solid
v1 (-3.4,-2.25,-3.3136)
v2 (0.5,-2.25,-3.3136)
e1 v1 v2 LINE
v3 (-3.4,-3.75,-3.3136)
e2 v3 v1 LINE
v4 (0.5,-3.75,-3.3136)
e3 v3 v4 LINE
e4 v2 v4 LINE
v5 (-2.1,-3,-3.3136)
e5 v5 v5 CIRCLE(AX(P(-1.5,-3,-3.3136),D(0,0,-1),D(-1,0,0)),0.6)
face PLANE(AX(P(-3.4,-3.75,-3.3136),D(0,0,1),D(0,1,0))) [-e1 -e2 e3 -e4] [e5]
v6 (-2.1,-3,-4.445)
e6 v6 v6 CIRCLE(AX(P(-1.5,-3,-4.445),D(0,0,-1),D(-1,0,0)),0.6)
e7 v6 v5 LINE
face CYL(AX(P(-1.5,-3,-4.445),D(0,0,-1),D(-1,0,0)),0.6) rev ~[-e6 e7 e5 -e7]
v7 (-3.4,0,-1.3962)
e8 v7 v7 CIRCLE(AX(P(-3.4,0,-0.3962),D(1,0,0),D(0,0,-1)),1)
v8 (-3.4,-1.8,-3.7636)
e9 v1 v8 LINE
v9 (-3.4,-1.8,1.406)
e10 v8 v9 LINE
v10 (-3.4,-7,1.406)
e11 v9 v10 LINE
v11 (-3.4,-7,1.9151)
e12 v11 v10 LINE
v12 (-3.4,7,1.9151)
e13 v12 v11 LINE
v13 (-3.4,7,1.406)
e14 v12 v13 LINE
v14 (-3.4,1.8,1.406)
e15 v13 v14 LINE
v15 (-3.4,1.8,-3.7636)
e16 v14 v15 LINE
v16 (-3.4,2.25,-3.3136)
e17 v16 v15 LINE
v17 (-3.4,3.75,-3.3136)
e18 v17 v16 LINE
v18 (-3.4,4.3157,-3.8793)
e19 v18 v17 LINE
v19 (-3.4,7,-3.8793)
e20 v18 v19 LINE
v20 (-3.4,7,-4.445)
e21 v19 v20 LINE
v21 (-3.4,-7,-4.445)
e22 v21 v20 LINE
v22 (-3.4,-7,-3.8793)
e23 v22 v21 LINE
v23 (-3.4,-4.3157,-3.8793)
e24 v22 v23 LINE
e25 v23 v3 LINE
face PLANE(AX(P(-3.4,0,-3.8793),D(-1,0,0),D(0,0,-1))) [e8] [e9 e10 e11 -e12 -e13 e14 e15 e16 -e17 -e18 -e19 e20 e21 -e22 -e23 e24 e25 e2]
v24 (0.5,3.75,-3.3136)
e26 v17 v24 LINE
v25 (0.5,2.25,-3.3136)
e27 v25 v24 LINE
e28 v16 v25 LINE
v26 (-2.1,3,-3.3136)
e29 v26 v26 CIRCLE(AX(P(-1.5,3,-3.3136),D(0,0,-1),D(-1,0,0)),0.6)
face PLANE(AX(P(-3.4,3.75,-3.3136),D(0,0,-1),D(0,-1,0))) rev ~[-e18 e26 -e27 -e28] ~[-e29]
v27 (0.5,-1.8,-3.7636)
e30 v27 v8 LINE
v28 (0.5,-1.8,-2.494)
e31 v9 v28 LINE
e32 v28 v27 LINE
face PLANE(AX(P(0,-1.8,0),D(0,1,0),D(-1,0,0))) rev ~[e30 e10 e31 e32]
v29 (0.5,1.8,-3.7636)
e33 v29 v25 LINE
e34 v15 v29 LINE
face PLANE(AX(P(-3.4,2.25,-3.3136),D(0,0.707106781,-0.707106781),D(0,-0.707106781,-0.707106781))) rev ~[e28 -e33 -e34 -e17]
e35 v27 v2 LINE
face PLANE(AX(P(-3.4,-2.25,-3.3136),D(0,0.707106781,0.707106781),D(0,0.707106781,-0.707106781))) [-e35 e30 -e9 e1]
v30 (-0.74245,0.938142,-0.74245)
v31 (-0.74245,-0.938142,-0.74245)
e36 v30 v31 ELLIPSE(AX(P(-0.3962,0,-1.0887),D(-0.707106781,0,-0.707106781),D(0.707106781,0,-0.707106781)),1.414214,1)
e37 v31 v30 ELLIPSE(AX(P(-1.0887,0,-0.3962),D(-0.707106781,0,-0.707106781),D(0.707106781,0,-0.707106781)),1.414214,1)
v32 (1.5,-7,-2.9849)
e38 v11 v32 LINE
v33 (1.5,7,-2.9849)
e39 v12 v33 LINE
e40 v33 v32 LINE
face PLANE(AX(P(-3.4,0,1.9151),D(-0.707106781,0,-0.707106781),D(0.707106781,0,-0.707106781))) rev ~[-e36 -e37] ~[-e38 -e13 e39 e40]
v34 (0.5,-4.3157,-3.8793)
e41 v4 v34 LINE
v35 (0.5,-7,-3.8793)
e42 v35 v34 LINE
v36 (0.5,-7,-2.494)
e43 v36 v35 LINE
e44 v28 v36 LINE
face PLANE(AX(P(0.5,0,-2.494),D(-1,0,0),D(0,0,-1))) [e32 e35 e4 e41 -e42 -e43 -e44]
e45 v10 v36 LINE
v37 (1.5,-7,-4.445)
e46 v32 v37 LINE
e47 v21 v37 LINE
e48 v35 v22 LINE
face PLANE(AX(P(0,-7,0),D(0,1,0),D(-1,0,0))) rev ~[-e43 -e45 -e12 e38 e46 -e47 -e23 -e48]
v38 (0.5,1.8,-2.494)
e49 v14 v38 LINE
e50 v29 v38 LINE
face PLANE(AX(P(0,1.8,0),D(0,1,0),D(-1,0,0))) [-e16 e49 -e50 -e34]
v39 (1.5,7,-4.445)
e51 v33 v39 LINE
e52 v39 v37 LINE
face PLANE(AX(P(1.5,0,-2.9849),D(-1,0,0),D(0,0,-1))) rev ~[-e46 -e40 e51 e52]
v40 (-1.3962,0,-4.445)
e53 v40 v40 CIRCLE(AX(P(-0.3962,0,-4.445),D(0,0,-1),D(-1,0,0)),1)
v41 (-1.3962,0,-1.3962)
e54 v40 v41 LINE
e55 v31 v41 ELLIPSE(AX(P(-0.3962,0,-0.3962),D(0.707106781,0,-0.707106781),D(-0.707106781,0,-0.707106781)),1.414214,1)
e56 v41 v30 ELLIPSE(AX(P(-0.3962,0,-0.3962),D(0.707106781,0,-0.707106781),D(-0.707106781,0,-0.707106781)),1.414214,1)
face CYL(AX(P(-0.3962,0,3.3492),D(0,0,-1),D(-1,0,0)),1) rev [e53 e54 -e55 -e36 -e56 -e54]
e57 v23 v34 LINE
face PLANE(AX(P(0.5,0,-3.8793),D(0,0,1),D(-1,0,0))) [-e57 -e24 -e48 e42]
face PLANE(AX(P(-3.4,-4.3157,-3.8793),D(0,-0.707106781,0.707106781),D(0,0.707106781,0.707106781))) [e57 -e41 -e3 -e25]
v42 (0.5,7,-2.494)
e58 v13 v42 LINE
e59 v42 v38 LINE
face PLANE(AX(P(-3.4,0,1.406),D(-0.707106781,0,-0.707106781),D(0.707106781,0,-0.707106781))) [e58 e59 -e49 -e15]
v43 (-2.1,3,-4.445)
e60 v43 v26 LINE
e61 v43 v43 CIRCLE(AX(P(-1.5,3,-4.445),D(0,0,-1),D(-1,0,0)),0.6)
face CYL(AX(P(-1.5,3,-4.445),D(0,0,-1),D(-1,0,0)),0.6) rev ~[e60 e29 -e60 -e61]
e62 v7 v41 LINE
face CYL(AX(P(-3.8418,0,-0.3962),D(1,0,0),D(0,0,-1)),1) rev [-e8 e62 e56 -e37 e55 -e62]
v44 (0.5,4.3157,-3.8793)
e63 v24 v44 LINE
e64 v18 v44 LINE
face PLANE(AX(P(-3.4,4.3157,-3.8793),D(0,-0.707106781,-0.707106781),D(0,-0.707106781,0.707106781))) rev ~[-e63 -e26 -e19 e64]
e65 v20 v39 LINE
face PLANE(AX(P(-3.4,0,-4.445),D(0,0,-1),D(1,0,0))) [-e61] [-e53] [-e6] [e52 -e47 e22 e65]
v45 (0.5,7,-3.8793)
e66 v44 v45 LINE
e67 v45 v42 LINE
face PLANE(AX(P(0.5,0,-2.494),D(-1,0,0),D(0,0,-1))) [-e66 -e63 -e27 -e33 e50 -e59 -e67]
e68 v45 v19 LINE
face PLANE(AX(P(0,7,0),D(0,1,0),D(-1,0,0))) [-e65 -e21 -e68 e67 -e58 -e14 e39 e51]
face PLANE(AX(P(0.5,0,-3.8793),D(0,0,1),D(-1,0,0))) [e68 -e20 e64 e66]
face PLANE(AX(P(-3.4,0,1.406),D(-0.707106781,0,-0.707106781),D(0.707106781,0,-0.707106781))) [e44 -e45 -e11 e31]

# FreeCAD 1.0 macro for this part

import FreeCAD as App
import Part
import Sketcher

V = App.Vector
Q = App.Units.Quantity

doc = App.newDocument("Part")
body = doc.addObject("PartDesign::Body", "Body")

# Sketch on XZ plane
sketch1 = body.newObject("Sketcher::SketchObject", "Sketch")
sketch1.AttachmentSupport = (doc.getObject("XZ_Plane"), [""])
sketch1.MapMode = "FlatFace"
sketch1.addGeometry(Part.LineSegment(V(1.5, -4.4, 0), V(-3.4, -4.4, 0)), False)
sketch1.addGeometry(Part.LineSegment(V(-3.4, -4.4, 0), V(-3.4, -3.9, 0)), False)
sketch1.addGeometry(Part.LineSegment(V(-3.4, -3.9, 0), V(0.5, -3.9, 0)), False)
sketch1.addGeometry(Part.LineSegment(V(0.5, -3.9, 0), V(0.5, -2.5, 0)), False)
sketch1.addGeometry(Part.LineSegment(V(0.5, -2.5, 0), V(-3.4, 1.4, 0)), False)
sketch1.addGeometry(Part.LineSegment(V(-3.4, 1.4, 0), V(-3.4, 1.9, 0)), False)
sketch1.addGeometry(Part.LineSegment(V(-3.4, 1.9, 0), V(1.5, -3, 0)), False)
sketch1.addGeometry(Part.LineSegment(V(1.5, -3, 0), V(1.5, -4.4, 0)), False)
sketch1.addConstraint(Sketcher.Constraint("Coincident", 0, 2, 1, 1))
sketch1.addConstraint(Sketcher.Constraint("Coincident", 1, 2, 2, 1))
sketch1.addConstraint(Sketcher.Constraint("Coincident", 2, 2, 3, 1))
sketch1.addConstraint(Sketcher.Constraint("Coincident", 3, 2, 4, 1))
sketch1.addConstraint(Sketcher.Constraint("Coincident", 4, 2, 5, 1))
sketch1.addConstraint(Sketcher.Constraint("Coincident", 5, 2, 6, 1))
sketch1.addConstraint(Sketcher.Constraint("Coincident", 6, 2, 7, 1))
sketch1.addConstraint(Sketcher.Constraint("Coincident", 7, 2, 0, 1))
sketch1.addConstraint(Sketcher.Constraint("Horizontal", 0))
sketch1.addConstraint(Sketcher.Constraint("Vertical", 1))
sketch1.addConstraint(Sketcher.Constraint("Horizontal", 2))
sketch1.addConstraint(Sketcher.Constraint("Vertical", 3))
sketch1.addConstraint(Sketcher.Constraint("Vertical", 5))
sketch1.addConstraint(Sketcher.Constraint("Vertical", 7))
sketch1.addConstraint(Sketcher.Constraint("Parallel", 4, 6))
sketch1.addConstraint(Sketcher.Constraint("Vertical", 1, 2, 4, 2))
sketch1.addConstraint(Sketcher.Constraint("Angle", 4, Q("135 deg")))
sketch1.addConstraint(Sketcher.Constraint("DistanceX", 3, 2, 6, 2, Q("1 mm")))
sketch1.addConstraint(Sketcher.Constraint("DistanceX", 0, 2, -1, 1, Q("3.4 mm")))
sketch1.addConstraint(Sketcher.Constraint("DistanceX", -1, 1, 6, 2, Q("1.5 mm")))
sketch1.addConstraint(Sketcher.Constraint("DistanceY", 0, 2, -1, 1, Q("4.445 mm")))
sketch1.addConstraint(Sketcher.Constraint("DistanceY", 7, 2, 7, 1, Q("1.46 mm")))
sketch1.addConstraint(Sketcher.Constraint("DistanceY", 5, 1, 5, 2, Q("0.509 mm")))
sketch1.addConstraint(Sketcher.Constraint("DistanceY", 1, 1, 1, 2, Q("0.5657 mm")))
pad1 = body.newObject("PartDesign::Pad", "Pad")
pad1.Profile = sketch1
pad1.Length = 14
pad1.Midplane = True

# Sketch on YZ plane
sketch2 = body.newObject("Sketcher::SketchObject", "Sketch001")
sketch2.AttachmentSupport = (doc.getObject("YZ_Plane"), [""])
sketch2.MapMode = "FlatFace"
sketch2.AttachmentOffset = App.Placement(V(0, 0, -3.4), App.Rotation())
sketch2.addGeometry(Part.LineSegment(V(4.3, -3.9, 0), V(1.7, -3.9, 0)), False)
sketch2.addGeometry(Part.LineSegment(V(1.7, -3.9, 0), V(2.2, -3.3, 0)), False)
sketch2.addGeometry(Part.LineSegment(V(2.2, -3.3, 0), V(3.8, -3.3, 0)), False)
sketch2.addGeometry(Part.LineSegment(V(3.8, -3.3, 0), V(4.3, -3.9, 0)), False)
sketch2.addGeometry(Part.LineSegment(V(-1.7, -3.9, 0), V(-4.3, -3.9, 0)), False)
sketch2.addGeometry(Part.LineSegment(V(-4.3, -3.9, 0), V(-3.8, -3.3, 0)), False)
sketch2.addGeometry(Part.LineSegment(V(-3.8, -3.3, 0), V(-2.2, -3.3, 0)), False)
sketch2.addGeometry(Part.LineSegment(V(-2.2, -3.3, 0), V(-1.7, -3.9, 0)), False)
sketch2.addConstraint(Sketcher.Constraint("Coincident", 0, 2, 1, 1))
sketch2.addConstraint(Sketcher.Constraint("Coincident", 1, 2, 2, 1))
sketch2.addConstraint(Sketcher.Constraint("Coincident", 2, 2, 3, 1))
sketch2.addConstraint(Sketcher.Constraint("Coincident", 3, 2, 0, 1))
sketch2.addConstraint(Sketcher.Constraint("Coincident", 4, 2, 5, 1))
sketch2.addConstraint(Sketcher.Constraint("Coincident", 5, 2, 6, 1))
sketch2.addConstraint(Sketcher.Constraint("Coincident", 6, 2, 7, 1))
sketch2.addConstraint(Sketcher.Constraint("Coincident", 7, 2, 4, 1))
sketch2.addConstraint(Sketcher.Constraint("Horizontal", 0))
sketch2.addConstraint(Sketcher.Constraint("Horizontal", 2))
sketch2.addConstraint(Sketcher.Constraint("Horizontal", 4))
sketch2.addConstraint(Sketcher.Constraint("Horizontal", 6))
sketch2.addConstraint(Sketcher.Constraint("Symmetric", 3, 2, 4, 2, -2))
sketch2.addConstraint(Sketcher.Constraint("Symmetric", 2, 2, 5, 2, -2))
sketch2.addConstraint(Sketcher.Constraint("Perpendicular", 1, 3))
sketch2.addConstraint(Sketcher.Constraint("Perpendicular", 3, 5))
sketch2.addConstraint(Sketcher.Constraint("Perpendicular", 5, 7))
sketch2.addConstraint(Sketcher.Constraint("Equal", 0, 4))
sketch2.addConstraint(Sketcher.Constraint("DistanceX", 2, 1, 2, 2, Q("1.5 mm")))
sketch2.addConstraint(Sketcher.Constraint("DistanceX", 4, 2, 0, 2, Q("6 mm")))
sketch2.addConstraint(Sketcher.Constraint("Distance", 1, Q("0.8 mm")))
sketch2.addConstraint(Sketcher.Constraint("DistanceY", 0, 2, -1, 1, Q("3.8793 mm")))
pad2 = body.newObject("PartDesign::Pad", "Pad001")
pad2.Profile = sketch2
pad2.Type = "UpToFirst"

# Sketch on XY plane
sketch3 = body.newObject("Sketcher::SketchObject", "Sketch002")
sketch3.AttachmentSupport = (doc.getObject("XY_Plane"), [""])
sketch3.MapMode = "FlatFace"
sketch3.AttachmentOffset = App.Placement(V(0, 0, -4.445), App.Rotation())
sketch3.addGeometry(Part.Circle(V(-1.5, 3, 0), V(0, 0, 1), 0.6), False)
sketch3.addGeometry(Part.Circle(V(-1.5, -3, 0), V(0, 0, 1), 0.6), False)
sketch3.addConstraint(Sketcher.Constraint("Equal", 0, 1))
sketch3.addConstraint(Sketcher.Constraint("Symmetric", 0, 3, 1, 3, -1))
sketch3.addConstraint(Sketcher.Constraint("Diameter", 0, Q("1.2 mm")))
sketch3.addConstraint(Sketcher.Constraint("DistanceY", -1, 1, 0, 3, Q("3 mm")))
sketch3.addConstraint(Sketcher.Constraint("DistanceX", 0, 3, -1, 1, Q("1.5 mm")))
pocket1 = body.newObject("PartDesign::Pocket", "Pocket")
pocket1.Profile = sketch3
pocket1.Length = 2
pocket1.Reversed = True

# Sketch on XZ plane
sketch4 = body.newObject("Sketcher::SketchObject", "Sketch003")
sketch4.AttachmentSupport = (doc.getObject("XZ_Plane"), [""])
sketch4.MapMode = "FlatFace"
sketch4.addGeometry(Part.LineSegment(V(0.5, -3.9, 0), V(-3.4, -3.9, 0)), False)
sketch4.addGeometry(Part.LineSegment(V(-3.4, -3.9, 0), V(-3.4, 1.4, 0)), False)
sketch4.addGeometry(Part.LineSegment(V(-3.4, 1.4, 0), V(0.5, -2.5, 0)), False)
sketch4.addGeometry(Part.LineSegment(V(0.5, -2.5, 0), V(0.5, -3.9, 0)), False)
sketch4.addConstraint(Sketcher.Constraint("Coincident", 0, 2, 1, 1))
sketch4.addConstraint(Sketcher.Constraint("Coincident", 1, 2, 2, 1))
sketch4.addConstraint(Sketcher.Constraint("Coincident", 2, 2, 3, 1))
sketch4.addConstraint(Sketcher.Constraint("Coincident", 3, 2, 0, 1))
sketch4.addConstraint(Sketcher.Constraint("Horizontal", 0))
sketch4.addConstraint(Sketcher.Constraint("Vertical", 1))
sketch4.addConstraint(Sketcher.Constraint("Vertical", 3))
sketch4.addConstraint(Sketcher.Constraint("Angle", 2, Q("-45 deg")))
sketch4.addConstraint(Sketcher.Constraint("DistanceX", 0, 2, -1, 1, Q("3.4 mm")))
sketch4.addConstraint(Sketcher.Constraint("DistanceX", 0, 2, 0, 1, Q("3.9 mm")))
sketch4.addConstraint(Sketcher.Constraint("DistanceY", 1, 1, 1, 2, Q("5.2853 mm")))
sketch4.addConstraint(Sketcher.Constraint("DistanceY", -1, 1, 1, 2, Q("1.406 mm")))
pad3 = body.newObject("PartDesign::Pad", "Pad002")
pad3.Profile = sketch4
pad3.Length = 3.6
pad3.Midplane = True

# Sketch on XZ plane
sketch5 = body.newObject("Sketcher::SketchObject", "Sketch004")
sketch5.AttachmentSupport = (doc.getObject("XZ_Plane"), [""])
sketch5.MapMode = "FlatFace"
sketch5.addGeometry(Part.LineSegment(V(-1.4, 3.3, 0), V(-0.4, 3.3, 0)), False)
sketch5.addGeometry(Part.LineSegment(V(-0.4, 3.3, 0), V(-0.4, -5, 0)), False)
sketch5.addGeometry(Part.LineSegment(V(-0.4, -5, 0), V(-1.4, -5, 0)), False)
sketch5.addGeometry(Part.LineSegment(V(-1.4, -5, 0), V(-1.4, 3.3, 0)), False)
sketch5.addGeometry(Part.LineSegment(V(-0.4, -5, 0), V(-0.4, 3.3, 0)), True)  # axis
sketch5.addConstraint(Sketcher.Constraint("Coincident", 0, 2, 1, 1))
sketch5.addConstraint(Sketcher.Constraint("Coincident", 1, 2, 2, 1))
sketch5.addConstraint(Sketcher.Constraint("Coincident", 2, 2, 3, 1))
sketch5.addConstraint(Sketcher.Constraint("Coincident", 3, 2, 0, 1))
sketch5.addConstraint(Sketcher.Constraint("Horizontal", 0))
sketch5.addConstraint(Sketcher.Constraint("Vertical", 1))
sketch5.addConstraint(Sketcher.Constraint("Horizontal", 2))
sketch5.addConstraint(Sketcher.Constraint("Vertical", 3))
sketch5.addConstraint(Sketcher.Constraint("Vertical", 4))
sketch5.addConstraint(Sketcher.Constraint("Coincident", 4, 1, 1, 2))
sketch5.addConstraint(Sketcher.Constraint("Horizontal", 3, 2, 4, 2))
sketch5.addConstraint(Sketcher.Constraint("DistanceX", 0, 1, 0, 2, Q("1 mm")))
sketch5.addConstraint(Sketcher.Constraint("DistanceY", 1, 2, -1, 1, Q("4.99 mm")))
sketch5.addConstraint(Sketcher.Constraint("DistanceY", 1, 2, 1, 1, Q("8.3393 mm")))
sketch5.addConstraint(Sketcher.Constraint("DistanceX", 0, 2, -1, 1, Q("0.3962 mm")))
groove = body.newObject("PartDesign::Groove", "Groove")
groove.Profile = sketch5
groove.ReferenceAxis = (sketch5, ["Axis0"])
groove.Angle = 360

# Sketch on XZ plane
sketch6 = body.newObject("Sketcher::SketchObject", "Sketch005")
sketch6.AttachmentSupport = (doc.getObject("XZ_Plane"), [""])
sketch6.MapMode = "FlatFace"
sketch6.addGeometry(Part.LineSegment(V(1.8, -0.4, 0), V(1.8, -1.4, 0)), False)
sketch6.addGeometry(Part.LineSegment(V(1.8, -1.4, 0), V(-3.8, -1.4, 0)), False)
sketch6.addGeometry(Part.LineSegment(V(-3.8, -1.4, 0), V(-3.8, -0.4, 0)), False)
sketch6.addGeometry(Part.LineSegment(V(-3.8, -0.4, 0), V(1.8, -0.4, 0)), False)
sketch6.addGeometry(Part.LineSegment(V(1.8, -0.4, 0), V(-3.8, -0.4, 0)), True)  # axis
sketch6.addConstraint(Sketcher.Constraint("Coincident", 0, 2, 1, 1))
sketch6.addConstraint(Sketcher.Constraint("Coincident", 1, 2, 2, 1))
sketch6.addConstraint(Sketcher.Constraint("Coincident", 2, 2, 3, 1))
sketch6.addConstraint(Sketcher.Constraint("Coincident", 3, 2, 0, 1))
sketch6.addConstraint(Sketcher.Constraint("Vertical", 0))
sketch6.addConstraint(Sketcher.Constraint("Horizontal", 1))
sketch6.addConstraint(Sketcher.Constraint("Vertical", 2))
sketch6.addConstraint(Sketcher.Constraint("Horizontal", 3))
sketch6.addConstraint(Sketcher.Constraint("Horizontal", 4))
sketch6.addConstraint(Sketcher.Constraint("Coincident", 4, 1, 3, 2))
sketch6.addConstraint(Sketcher.Constraint("Vertical", 1, 2, 4, 2))
sketch6.addConstraint(Sketcher.Constraint("DistanceY", 0, 2, 0, 1, Q("1 mm")))
sketch6.addConstraint(Sketcher.Constraint("DistanceX", 1, 2, 1, 1, Q("5.6762 mm")))
sketch6.addConstraint(Sketcher.Constraint("DistanceX", -1, 1, 0, 2, Q("1.8344 mm")))
sketch6.addConstraint(Sketcher.Constraint("DistanceY", 0, 2, -1, 1, Q("1.3962 mm")))
groove2 = body.newObject("PartDesign::Groove", "Groove001")
groove2.Profile = sketch6
groove2.ReferenceAxis = (sketch6, ["Axis0"])
groove2.Angle = 360

doc.recompute()
